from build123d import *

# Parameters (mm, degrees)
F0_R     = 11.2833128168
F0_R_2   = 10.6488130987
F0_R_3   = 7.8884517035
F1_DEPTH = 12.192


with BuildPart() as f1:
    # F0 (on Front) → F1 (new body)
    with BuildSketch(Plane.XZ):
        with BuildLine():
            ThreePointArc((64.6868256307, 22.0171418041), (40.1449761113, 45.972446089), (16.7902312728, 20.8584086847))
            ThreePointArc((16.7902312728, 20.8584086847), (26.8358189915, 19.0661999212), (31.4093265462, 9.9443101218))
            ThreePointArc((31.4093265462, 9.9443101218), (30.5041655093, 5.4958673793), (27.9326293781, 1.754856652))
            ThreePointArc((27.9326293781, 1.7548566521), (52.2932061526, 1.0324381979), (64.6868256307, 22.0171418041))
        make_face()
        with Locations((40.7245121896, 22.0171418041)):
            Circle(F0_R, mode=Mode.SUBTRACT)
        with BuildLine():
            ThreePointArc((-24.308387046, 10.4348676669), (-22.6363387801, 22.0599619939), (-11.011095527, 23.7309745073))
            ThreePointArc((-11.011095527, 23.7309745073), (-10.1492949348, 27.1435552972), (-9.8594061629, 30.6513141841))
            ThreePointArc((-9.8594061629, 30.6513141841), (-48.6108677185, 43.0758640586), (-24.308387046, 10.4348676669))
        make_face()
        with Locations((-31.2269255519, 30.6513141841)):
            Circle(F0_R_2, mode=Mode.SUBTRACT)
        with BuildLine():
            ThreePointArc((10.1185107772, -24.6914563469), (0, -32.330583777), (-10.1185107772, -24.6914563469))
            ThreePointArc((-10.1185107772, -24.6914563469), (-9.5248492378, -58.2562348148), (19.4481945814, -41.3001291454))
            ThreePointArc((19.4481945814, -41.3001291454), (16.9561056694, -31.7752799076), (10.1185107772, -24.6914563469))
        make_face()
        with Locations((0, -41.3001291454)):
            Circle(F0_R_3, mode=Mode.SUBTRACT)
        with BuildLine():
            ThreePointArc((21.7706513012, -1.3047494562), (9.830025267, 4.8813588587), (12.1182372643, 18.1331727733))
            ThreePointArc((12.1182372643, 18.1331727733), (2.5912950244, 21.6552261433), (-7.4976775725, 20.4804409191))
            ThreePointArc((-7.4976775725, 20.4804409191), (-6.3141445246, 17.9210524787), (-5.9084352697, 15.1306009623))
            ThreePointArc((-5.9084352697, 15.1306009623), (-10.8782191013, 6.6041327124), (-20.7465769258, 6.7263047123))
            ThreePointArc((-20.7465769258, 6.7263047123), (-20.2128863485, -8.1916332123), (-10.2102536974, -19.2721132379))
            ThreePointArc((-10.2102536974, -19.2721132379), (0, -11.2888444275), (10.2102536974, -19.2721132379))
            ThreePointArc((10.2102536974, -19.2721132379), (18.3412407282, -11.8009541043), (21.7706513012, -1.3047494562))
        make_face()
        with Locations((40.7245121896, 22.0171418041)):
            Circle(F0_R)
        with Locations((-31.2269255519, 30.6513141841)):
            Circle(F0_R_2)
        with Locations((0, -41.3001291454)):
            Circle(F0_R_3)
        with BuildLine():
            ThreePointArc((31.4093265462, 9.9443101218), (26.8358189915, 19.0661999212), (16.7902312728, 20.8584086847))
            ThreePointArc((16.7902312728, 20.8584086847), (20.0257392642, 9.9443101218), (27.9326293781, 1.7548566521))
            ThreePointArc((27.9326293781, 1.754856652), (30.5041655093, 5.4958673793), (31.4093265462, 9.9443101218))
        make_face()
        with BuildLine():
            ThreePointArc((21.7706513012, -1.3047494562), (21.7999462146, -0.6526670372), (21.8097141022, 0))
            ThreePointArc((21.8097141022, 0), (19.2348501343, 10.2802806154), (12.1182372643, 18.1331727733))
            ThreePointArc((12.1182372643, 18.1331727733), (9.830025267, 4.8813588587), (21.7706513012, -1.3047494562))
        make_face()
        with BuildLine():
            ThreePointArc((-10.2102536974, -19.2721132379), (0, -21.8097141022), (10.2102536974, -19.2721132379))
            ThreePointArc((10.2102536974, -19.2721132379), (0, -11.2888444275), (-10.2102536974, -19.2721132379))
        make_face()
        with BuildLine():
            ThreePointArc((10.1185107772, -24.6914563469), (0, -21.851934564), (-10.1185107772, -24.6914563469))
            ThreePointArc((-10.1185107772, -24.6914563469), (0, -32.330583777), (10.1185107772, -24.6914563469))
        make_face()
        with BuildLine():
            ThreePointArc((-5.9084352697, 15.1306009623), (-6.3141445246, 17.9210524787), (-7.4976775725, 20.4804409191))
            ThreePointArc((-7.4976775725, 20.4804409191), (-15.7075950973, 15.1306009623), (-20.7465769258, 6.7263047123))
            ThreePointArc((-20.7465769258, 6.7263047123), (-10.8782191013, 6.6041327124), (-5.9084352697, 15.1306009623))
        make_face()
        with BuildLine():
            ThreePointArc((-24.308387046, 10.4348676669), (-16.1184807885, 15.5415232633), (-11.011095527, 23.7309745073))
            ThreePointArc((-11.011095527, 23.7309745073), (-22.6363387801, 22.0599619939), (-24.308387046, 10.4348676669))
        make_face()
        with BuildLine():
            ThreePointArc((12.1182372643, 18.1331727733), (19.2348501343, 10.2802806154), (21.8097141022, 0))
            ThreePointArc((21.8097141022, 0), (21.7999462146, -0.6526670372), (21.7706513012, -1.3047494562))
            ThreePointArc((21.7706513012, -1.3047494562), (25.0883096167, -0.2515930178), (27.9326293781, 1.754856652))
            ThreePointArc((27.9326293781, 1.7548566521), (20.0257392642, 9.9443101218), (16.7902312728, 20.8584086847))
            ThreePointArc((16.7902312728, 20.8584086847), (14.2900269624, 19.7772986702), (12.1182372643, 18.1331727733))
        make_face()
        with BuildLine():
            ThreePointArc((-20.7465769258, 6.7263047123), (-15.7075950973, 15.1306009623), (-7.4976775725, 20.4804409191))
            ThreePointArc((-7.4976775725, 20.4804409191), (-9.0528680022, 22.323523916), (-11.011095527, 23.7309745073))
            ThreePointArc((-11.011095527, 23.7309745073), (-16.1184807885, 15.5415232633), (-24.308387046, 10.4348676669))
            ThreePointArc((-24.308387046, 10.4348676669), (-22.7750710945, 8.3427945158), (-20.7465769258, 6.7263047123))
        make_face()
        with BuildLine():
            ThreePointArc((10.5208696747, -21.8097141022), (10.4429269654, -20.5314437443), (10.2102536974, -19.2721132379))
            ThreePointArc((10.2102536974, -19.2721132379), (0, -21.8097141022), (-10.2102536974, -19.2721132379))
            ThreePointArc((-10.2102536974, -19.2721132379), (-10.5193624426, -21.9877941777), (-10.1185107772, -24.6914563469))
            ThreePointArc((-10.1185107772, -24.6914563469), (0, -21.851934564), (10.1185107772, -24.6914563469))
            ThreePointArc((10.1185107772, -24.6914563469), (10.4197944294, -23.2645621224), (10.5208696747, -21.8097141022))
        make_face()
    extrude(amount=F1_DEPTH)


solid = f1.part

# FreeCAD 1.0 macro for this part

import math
import FreeCAD as App
import Part
import Sketcher
Q = App.Units.Quantity

doc = App.newDocument("Part")
body = doc.addObject("PartDesign::Body", "Body")

sketch1 = doc.addObject("Sketcher::SketchObject", "Sketch")
body.addObject(sketch1)
sketch1.AttachmentSupport = (doc.XZ_Plane, [""])
sketch1.MapMode = "FlatFace"
sketch1.addGeometry([
    Part.ArcOfCircle(Part.Circle(App.Vector(40.7, 22, 0), App.Vector(0, 0, 1), 24), math.radians(0), math.radians(183)),
    Part.ArcOfCircle(Part.Circle(App.Vector(20, 9.9, 0), App.Vector(0, 0, 1), 11.4), math.radians(107), math.radians(134)),
    Part.ArcOfCircle(Part.Circle(App.Vector(0, 0, 0), App.Vector(0, 0, 1), 21.8), math.radians(56), math.radians(110)),
    Part.ArcOfCircle(Part.Circle(App.Vector(-15.7, 15.1, 0), App.Vector(0, 0, 1), 9.8), math.radians(33), math.radians(61)),
    Part.ArcOfCircle(Part.Circle(App.Vector(-31.2, 30.7, 0), App.Vector(0, 0, 1), 21.4), math.radians(-18.9), math.radians(0)),
    Part.ArcOfCircle(Part.Circle(App.Vector(-31.2, 30.7, 0), App.Vector(0, 0, 1), 21.4), math.radians(0), math.radians(289)),
    Part.ArcOfCircle(Part.Circle(App.Vector(-15.7, 15.1, 0), App.Vector(0, 0, 1), 9.8), math.radians(-151), math.radians(-121)),
    Part.ArcOfCircle(Part.Circle(App.Vector(0, 0, 0), App.Vector(0, 0, 1), 21.8), math.radians(162), math.radians(242)),
    Part.ArcOfCircle(Part.Circle(App.Vector(0, -21.8, 0), App.Vector(0, 0, 1), 10.5), math.radians(166), math.radians(196)),
    Part.ArcOfCircle(Part.Circle(App.Vector(0, -41.3, 0), App.Vector(0, 0, 1), 19.4), math.radians(121), math.radians(360)),
    Part.ArcOfCircle(Part.Circle(App.Vector(0, -41.3, 0), App.Vector(0, 0, 1), 19.4), math.radians(0), math.radians(59)),
    Part.ArcOfCircle(Part.Circle(App.Vector(0, -21.8, 0), App.Vector(0, 0, 1), 10.5), math.radians(-15.9), math.radians(0)),
    Part.ArcOfCircle(Part.Circle(App.Vector(0, -21.8, 0), App.Vector(0, 0, 1), 10.5), math.radians(0), math.radians(13.96)),
    Part.ArcOfCircle(Part.Circle(App.Vector(0, 0, 0), App.Vector(0, 0, 1), 21.8), math.radians(-62), math.radians(-3)),
    Part.ArcOfCircle(Part.Circle(App.Vector(20, 9.9, 0), App.Vector(0, 0, 1), 11.4), math.radians(-81), math.radians(-46)),
    Part.ArcOfCircle(Part.Circle(App.Vector(40.7, 22, 0), App.Vector(0, 0, 1), 24), math.radians(-122), math.radians(0)),
], False)
sketch1.addConstraint([
    Sketcher.Constraint("Coincident", 0, 2, 1, 1),
    Sketcher.Constraint("Coincident", 1, 2, 2, 1),
    Sketcher.Constraint("Coincident", 2, 2, 3, 1),
    Sketcher.Constraint("Coincident", 3, 2, 4, 1),
    Sketcher.Constraint("Tangent", 4, 2, 5, 1),
    Sketcher.Constraint("Coincident", 5, 2, 6, 1),
    Sketcher.Constraint("Coincident", 6, 2, 7, 1),
    Sketcher.Constraint("Coincident", 7, 2, 8, 1),
    Sketcher.Constraint("Coincident", 8, 2, 9, 1),
    Sketcher.Constraint("Tangent", 9, 2, 10, 1),
    Sketcher.Constraint("Coincident", 10, 2, 11, 1),
    Sketcher.Constraint("Tangent", 11, 2, 12, 1),
    Sketcher.Constraint("Coincident", 12, 2, 13, 1),
    Sketcher.Constraint("Coincident", 13, 2, 14, 1),
    Sketcher.Constraint("Coincident", 14, 2, 15, 1),
    Sketcher.Constraint("Tangent", 15, 2, 0, 1),
    Sketcher.Constraint("Coincident", 2, 3, -1, 1),
    Sketcher.Constraint("Coincident", 7, 3, -1, 1),
    Sketcher.Constraint("Coincident", 13, 3, -1, 1),
    Sketcher.Constraint("Coincident", 6, 3, 3, 3),
    Sketcher.Constraint("Coincident", 11, 3, 8, 3),
    Sketcher.Constraint("Coincident", 14, 3, 1, 3),
    Sketcher.Constraint("Equal", 4, 5),
    Sketcher.Constraint("Equal", 3, 6),
    Sketcher.Constraint("Equal", 2, 7),
    Sketcher.Constraint("Equal", 9, 10),
    Sketcher.Constraint("Equal", 8, 11),
    Sketcher.Constraint("Equal", 11, 12),
    Sketcher.Constraint("Equal", 7, 13),
    Sketcher.Constraint("Equal", 1, 14),
    Sketcher.Constraint("Equal", 0, 15),
    Sketcher.Constraint("Symmetric", 8, 2, 10, 2, -2),
    Sketcher.Constraint("Horizontal", 5, 3, 4, 2),
    Sketcher.Constraint("Horizontal", 10, 3, 9, 2),
    Sketcher.Constraint("Horizontal", 12, 3, 11, 2),
    Sketcher.Constraint("Horizontal", 0, 3, 15, 2),
    Sketcher.Constraint("Radius", 3, 9.79916),
    Sketcher.Constraint("Radius", 4, 21.367519),
    Sketcher.Constraint("Radius", 8, 10.52087),
    Sketcher.Constraint("Radius", 0, 23.962313),
    Sketcher.Constraint("Radius", 1, 11.383587),
    Sketcher.Constraint("Radius", 2, 21.809714),
    Sketcher.Constraint("Radius", 9, 19.448195),
    Sketcher.Constraint("DistanceY", -1, 1, 3, 3, 15.130601),
    Sketcher.Constraint("DistanceY", 14, 3, 0, 2, 10.914099),
    Sketcher.Constraint("DistanceX", 3, 3, 3, 2, 4.6965),
    Sketcher.Constraint("DistanceX", 6, 2, 2, 2, 13.248899),
    Sketcher.Constraint("DistanceY", 8, 3, 7, 2, 2.537601),
    Sketcher.Constraint("DistanceX", 0, 2, 14, 2, 11.142398),
    Sketcher.Constraint("DistanceY", -1, 1, 0, 3, 22.017142),
    Sketcher.Constraint("DistanceX", -1, 1, 1, 3, 20.025739),
    Sketcher.Constraint("DistanceY", 9, 3, -1, 1, 41.300129),
    Sketcher.Constraint("DistanceX", 4, 3, 3, 3, 15.51933),
])
pad1 = doc.addObject("PartDesign::Pad", "Pad")
body.addObject(pad1)
pad1.Profile = sketch1
pad1.Length = Q("0.48 in")

doc.recompute()
